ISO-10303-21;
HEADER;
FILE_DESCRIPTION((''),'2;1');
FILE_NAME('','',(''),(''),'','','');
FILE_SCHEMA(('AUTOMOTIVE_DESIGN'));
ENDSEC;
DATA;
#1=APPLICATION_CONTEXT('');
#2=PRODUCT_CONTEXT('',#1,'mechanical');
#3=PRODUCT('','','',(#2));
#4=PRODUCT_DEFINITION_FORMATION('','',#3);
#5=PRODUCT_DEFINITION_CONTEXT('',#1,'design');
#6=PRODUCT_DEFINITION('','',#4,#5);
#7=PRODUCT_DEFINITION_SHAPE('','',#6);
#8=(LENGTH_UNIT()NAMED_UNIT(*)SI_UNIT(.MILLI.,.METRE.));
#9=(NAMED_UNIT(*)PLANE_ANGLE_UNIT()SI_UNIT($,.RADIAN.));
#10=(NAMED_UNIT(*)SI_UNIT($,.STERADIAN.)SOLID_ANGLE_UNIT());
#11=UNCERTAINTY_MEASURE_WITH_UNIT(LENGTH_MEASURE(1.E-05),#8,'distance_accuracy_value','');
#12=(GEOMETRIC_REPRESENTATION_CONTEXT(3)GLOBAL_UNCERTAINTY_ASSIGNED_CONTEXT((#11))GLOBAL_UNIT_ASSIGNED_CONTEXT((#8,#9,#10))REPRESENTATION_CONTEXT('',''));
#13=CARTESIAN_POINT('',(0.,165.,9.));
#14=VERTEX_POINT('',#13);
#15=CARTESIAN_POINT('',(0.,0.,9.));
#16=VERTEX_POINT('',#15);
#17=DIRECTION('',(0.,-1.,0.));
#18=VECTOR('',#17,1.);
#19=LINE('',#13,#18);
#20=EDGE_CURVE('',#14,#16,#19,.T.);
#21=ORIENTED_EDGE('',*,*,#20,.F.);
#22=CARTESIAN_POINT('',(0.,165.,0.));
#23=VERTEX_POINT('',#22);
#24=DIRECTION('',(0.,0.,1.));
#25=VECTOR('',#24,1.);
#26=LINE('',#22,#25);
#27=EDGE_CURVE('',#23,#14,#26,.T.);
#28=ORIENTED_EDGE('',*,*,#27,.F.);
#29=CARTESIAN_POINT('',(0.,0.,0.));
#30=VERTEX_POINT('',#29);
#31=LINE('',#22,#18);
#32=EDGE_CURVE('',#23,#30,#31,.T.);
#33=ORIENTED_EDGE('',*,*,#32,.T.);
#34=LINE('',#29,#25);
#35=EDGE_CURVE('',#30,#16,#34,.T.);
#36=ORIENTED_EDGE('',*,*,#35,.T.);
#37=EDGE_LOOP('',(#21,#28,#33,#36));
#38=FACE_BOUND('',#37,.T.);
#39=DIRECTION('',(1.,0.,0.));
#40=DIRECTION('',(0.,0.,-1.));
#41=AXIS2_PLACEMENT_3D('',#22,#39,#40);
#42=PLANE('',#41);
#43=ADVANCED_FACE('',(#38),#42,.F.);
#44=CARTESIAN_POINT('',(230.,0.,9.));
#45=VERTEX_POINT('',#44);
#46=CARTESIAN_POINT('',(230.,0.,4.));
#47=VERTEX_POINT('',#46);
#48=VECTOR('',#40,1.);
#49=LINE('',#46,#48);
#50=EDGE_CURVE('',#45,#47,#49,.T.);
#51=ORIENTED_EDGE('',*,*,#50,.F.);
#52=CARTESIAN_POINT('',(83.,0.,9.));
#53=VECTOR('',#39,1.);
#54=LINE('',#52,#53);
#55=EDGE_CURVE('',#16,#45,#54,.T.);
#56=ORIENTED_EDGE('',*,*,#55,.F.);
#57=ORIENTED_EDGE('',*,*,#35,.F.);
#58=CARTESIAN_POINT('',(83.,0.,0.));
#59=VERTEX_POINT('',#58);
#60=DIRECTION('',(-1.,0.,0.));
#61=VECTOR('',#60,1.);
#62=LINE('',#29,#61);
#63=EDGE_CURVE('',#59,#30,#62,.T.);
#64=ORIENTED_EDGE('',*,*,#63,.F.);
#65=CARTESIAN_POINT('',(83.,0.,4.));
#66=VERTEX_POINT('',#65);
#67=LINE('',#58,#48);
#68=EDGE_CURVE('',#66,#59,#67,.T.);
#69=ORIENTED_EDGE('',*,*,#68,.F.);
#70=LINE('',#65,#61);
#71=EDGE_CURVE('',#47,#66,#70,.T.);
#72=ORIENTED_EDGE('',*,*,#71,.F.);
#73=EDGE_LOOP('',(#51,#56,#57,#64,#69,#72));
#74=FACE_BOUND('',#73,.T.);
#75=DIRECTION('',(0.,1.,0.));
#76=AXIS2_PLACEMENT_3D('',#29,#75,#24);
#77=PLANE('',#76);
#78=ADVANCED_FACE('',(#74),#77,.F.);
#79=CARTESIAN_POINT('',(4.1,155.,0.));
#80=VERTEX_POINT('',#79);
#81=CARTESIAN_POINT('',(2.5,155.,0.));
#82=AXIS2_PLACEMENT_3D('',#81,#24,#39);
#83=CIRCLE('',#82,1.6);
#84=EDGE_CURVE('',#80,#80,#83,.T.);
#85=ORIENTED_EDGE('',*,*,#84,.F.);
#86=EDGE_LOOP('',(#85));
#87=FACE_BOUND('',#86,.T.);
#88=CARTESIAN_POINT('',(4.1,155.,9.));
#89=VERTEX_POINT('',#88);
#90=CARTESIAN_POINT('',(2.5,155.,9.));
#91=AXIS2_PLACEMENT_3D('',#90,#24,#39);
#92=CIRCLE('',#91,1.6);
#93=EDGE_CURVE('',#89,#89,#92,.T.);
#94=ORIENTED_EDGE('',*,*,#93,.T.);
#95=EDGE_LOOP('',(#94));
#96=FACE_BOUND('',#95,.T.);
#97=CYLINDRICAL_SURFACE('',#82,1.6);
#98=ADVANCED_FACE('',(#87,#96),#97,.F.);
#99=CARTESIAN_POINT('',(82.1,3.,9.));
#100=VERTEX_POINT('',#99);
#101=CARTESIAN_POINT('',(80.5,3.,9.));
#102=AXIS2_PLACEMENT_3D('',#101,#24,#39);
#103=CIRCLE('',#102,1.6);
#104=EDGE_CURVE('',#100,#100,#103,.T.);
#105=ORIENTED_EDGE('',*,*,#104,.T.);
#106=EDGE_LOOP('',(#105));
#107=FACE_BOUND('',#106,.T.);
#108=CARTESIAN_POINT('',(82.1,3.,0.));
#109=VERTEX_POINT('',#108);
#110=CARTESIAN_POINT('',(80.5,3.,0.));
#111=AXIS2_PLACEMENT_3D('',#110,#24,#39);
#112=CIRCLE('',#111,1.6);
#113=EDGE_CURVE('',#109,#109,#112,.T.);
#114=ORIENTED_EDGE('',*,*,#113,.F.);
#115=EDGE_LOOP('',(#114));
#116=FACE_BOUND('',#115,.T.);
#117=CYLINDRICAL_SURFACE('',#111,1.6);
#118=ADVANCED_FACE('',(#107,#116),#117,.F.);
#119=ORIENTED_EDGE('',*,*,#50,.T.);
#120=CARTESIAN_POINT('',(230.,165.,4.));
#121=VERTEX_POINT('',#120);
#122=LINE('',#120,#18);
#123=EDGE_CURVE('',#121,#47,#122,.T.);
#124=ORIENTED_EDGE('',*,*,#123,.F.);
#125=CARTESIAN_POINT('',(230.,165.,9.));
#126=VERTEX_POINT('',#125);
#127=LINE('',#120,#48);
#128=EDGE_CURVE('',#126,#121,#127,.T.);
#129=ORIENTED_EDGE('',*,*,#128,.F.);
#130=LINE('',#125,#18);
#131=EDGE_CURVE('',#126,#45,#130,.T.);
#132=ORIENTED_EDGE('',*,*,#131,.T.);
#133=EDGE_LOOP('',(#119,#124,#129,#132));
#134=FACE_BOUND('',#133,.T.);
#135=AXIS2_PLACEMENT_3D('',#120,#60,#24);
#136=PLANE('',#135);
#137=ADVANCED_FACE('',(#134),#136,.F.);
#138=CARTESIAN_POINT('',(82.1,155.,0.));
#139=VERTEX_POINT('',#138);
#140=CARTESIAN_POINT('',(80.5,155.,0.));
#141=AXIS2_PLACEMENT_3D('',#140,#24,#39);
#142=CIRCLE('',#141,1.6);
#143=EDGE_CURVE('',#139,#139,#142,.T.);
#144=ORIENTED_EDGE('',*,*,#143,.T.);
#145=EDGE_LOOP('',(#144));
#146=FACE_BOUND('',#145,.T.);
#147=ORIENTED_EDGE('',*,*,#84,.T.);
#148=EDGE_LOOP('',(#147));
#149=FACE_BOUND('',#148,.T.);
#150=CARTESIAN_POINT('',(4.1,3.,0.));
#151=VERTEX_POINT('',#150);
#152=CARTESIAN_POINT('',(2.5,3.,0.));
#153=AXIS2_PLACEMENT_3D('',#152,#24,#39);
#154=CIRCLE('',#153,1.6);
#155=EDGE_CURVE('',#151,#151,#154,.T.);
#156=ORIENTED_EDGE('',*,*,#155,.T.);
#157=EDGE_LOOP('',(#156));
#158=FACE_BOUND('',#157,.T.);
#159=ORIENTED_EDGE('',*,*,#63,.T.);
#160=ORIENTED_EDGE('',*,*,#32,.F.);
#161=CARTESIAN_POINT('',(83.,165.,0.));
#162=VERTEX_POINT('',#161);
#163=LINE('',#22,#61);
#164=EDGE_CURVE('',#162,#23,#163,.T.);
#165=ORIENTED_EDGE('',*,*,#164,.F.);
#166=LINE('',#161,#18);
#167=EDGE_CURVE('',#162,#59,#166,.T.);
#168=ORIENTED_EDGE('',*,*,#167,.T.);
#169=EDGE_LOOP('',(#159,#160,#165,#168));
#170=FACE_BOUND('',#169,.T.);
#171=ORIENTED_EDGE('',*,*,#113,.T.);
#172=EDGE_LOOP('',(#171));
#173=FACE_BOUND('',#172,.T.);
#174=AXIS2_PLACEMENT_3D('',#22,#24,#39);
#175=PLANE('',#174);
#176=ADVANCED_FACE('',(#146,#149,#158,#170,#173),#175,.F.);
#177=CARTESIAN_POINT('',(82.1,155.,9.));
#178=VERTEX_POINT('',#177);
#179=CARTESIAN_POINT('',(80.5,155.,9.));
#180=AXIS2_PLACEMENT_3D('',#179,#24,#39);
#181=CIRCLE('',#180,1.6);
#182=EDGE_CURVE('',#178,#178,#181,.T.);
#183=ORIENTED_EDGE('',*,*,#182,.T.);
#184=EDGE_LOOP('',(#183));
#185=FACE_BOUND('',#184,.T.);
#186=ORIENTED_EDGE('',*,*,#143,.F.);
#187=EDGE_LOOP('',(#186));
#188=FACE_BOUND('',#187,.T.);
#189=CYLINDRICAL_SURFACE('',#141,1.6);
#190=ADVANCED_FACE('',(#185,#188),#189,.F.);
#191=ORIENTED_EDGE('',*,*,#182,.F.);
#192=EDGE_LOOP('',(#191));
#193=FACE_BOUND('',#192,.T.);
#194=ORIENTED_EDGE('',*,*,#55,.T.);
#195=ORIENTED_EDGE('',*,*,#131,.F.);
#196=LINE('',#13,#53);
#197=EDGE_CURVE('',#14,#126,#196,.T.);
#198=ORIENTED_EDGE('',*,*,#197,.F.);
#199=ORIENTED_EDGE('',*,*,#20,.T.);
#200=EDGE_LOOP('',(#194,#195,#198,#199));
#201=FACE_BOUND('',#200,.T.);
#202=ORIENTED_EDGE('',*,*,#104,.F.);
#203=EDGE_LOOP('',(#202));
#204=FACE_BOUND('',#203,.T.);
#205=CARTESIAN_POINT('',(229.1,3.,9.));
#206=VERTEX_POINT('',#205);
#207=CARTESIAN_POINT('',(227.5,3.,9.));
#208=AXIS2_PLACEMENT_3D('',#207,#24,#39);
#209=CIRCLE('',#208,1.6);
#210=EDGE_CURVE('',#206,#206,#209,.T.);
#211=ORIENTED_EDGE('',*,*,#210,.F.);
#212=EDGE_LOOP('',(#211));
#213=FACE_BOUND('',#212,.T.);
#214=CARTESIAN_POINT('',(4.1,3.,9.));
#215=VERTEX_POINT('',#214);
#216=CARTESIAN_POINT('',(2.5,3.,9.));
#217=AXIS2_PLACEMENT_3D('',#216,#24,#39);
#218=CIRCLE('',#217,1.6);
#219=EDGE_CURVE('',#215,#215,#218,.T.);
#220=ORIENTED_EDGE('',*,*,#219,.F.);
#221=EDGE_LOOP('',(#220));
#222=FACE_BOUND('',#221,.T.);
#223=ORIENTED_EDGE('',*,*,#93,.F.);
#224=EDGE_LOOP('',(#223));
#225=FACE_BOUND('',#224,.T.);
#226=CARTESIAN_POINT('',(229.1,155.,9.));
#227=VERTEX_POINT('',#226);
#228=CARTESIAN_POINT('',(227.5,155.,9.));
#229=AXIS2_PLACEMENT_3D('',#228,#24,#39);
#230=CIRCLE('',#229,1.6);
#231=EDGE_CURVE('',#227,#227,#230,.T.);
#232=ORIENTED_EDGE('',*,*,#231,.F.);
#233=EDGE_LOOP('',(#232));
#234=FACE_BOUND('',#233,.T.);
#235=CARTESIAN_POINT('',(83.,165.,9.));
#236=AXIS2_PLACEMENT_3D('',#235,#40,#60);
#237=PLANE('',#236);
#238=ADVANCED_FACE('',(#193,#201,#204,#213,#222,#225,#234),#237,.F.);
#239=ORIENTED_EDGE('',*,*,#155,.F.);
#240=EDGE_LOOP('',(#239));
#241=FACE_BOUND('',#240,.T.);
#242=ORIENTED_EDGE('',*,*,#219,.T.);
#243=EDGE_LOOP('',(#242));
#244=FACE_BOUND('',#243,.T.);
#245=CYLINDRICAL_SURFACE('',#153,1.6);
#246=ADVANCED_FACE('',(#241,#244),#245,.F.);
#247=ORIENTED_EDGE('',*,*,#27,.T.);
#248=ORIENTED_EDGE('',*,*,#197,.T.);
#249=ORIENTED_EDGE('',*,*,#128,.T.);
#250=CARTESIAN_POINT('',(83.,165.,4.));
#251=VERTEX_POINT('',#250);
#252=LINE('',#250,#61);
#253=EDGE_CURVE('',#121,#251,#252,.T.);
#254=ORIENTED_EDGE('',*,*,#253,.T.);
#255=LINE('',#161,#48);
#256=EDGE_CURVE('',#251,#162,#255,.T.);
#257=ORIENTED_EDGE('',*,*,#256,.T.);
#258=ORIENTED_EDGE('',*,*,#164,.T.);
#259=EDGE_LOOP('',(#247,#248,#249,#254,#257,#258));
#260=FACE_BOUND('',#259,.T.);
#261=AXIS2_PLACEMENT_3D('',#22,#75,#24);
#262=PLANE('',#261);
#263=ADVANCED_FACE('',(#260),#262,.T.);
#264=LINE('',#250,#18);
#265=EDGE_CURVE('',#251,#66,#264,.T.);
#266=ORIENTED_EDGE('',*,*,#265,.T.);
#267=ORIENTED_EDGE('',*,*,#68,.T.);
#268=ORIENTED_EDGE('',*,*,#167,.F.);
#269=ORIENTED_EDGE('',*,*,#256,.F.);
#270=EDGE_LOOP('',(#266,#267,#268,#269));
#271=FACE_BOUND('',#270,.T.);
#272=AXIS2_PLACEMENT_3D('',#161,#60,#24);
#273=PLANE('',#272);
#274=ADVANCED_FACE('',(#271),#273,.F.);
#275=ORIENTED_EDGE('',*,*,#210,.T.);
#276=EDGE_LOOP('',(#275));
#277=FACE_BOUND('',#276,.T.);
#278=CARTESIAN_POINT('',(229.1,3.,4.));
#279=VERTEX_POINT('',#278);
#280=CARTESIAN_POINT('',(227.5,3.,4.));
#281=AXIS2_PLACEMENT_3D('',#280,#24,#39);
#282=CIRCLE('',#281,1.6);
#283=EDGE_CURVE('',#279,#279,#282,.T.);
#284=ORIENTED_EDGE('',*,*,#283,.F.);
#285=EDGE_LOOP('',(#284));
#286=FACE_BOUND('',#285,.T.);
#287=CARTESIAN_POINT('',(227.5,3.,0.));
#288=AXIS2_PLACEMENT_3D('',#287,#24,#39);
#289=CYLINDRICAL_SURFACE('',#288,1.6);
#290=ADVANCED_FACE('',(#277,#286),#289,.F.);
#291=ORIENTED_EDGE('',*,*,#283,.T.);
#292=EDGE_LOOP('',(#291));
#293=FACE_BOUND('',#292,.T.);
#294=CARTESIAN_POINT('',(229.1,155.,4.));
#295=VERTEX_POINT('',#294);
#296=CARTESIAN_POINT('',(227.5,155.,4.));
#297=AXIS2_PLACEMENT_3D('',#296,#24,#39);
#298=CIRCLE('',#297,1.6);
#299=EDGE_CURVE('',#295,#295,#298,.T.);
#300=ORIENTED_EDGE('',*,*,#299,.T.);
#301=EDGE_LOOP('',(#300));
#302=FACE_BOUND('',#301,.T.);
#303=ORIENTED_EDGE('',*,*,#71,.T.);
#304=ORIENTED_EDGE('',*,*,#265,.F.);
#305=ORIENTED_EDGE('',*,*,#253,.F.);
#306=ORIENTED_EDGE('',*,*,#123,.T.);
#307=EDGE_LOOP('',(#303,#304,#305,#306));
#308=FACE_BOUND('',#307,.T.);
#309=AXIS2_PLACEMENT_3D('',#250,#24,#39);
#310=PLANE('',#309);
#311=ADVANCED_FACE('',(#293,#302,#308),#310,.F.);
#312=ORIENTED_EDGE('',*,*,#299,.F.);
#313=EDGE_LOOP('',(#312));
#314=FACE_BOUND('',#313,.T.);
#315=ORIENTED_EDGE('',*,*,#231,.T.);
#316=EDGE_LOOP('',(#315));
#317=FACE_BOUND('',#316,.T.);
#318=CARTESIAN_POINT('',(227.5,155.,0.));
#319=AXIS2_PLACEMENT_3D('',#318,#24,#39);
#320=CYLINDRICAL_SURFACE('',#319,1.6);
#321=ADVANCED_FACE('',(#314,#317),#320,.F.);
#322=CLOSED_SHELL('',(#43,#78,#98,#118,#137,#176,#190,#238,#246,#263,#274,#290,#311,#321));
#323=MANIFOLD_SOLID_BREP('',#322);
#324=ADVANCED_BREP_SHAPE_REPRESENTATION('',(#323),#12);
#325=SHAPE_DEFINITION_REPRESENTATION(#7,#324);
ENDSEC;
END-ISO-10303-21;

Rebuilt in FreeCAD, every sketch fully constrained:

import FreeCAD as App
import Part
import Sketcher
from FreeCAD import Vector

doc = App.newDocument("Part")
body = doc.addObject("PartDesign::Body", "Body")

sketch1 = doc.addObject("Sketcher::SketchObject", "Sketch")
body.addObject(sketch1)
sketch1.AttachmentSupport = (doc.XZ_Plane, [""])
sketch1.MapMode = "FlatFace"
sketch1.addGeometry(Part.LineSegment(Vector(83, 0, 0), Vector(0, 0, 0)), False)
sketch1.addGeometry(Part.LineSegment(Vector(0, 0, 0), Vector(0, 9, 0)), False)
sketch1.addGeometry(Part.LineSegment(Vector(0, 9, 0), Vector(230, 9, 0)), False)
sketch1.addGeometry(Part.LineSegment(Vector(230, 9, 0), Vector(230, 4, 0)), False)
sketch1.addGeometry(Part.LineSegment(Vector(230, 4, 0), Vector(83, 4, 0)), False)
sketch1.addGeometry(Part.LineSegment(Vector(83, 4, 0), Vector(83, 0, 0)), False)
sketch1.addConstraint(Sketcher.Constraint("Coincident", 0, 2, 1, 1))
sketch1.addConstraint(Sketcher.Constraint("Coincident", 1, 2, 2, 1))
sketch1.addConstraint(Sketcher.Constraint("Coincident", 2, 2, 3, 1))
sketch1.addConstraint(Sketcher.Constraint("Coincident", 3, 2, 4, 1))
sketch1.addConstraint(Sketcher.Constraint("Coincident", 4, 2, 5, 1))
sketch1.addConstraint(Sketcher.Constraint("Coincident", 5, 2, 0, 1))
sketch1.addConstraint(Sketcher.Constraint("Horizontal", 0))
sketch1.addConstraint(Sketcher.Constraint("Vertical", 1))
sketch1.addConstraint(Sketcher.Constraint("Horizontal", 2))
sketch1.addConstraint(Sketcher.Constraint("Vertical", 3))
sketch1.addConstraint(Sketcher.Constraint("Horizontal", 4))
sketch1.addConstraint(Sketcher.Constraint("Vertical", 5))
sketch1.addConstraint(Sketcher.Constraint("Coincident", 0, 2, -1, 1))
sketch1.addConstraint(Sketcher.Constraint("DistanceX", 0, 2, 0, 1, 83.0))
sketch1.addConstraint(Sketcher.Constraint("DistanceX", 2, 1, 2, 2, 230.0))
sketch1.addConstraint(Sketcher.Constraint("DistanceY", 1, 1, 1, 2, 9.0))
sketch1.addConstraint(Sketcher.Constraint("DistanceY", 3, 2, 3, 1, 5.0))
pad1 = doc.addObject("PartDesign::Pad", "Pad")
body.addObject(pad1)
pad1.Profile = sketch1
pad1.Length = 165
pad1.Reversed = True

sketch2 = doc.addObject("Sketcher::SketchObject", "Sketch001")
body.addObject(sketch2)
sketch2.AttachmentSupport = (doc.XY_Plane, [""])
sketch2.MapMode = "FlatFace"
sketch2.AttachmentOffset = App.Placement(Vector(0, 0, 9), App.Rotation())
sketch2.addGeometry(Part.Circle(Vector(227.5, 3, 0), Vector(0, 0, 1), 1.6), False)
sketch2.addGeometry(Part.Circle(Vector(227.5, 155, 0), Vector(0, 0, 1), 1.6), False)
sketch2.addGeometry(Part.Circle(Vector(80.5, 155, 0), Vector(0, 0, 1), 1.6), False)
sketch2.addGeometry(Part.Circle(Vector(80.5, 3, 0), Vector(0, 0, 1), 1.6), False)
sketch2.addGeometry(Part.Circle(Vector(2.5, 155, 0), Vector(0, 0, 1), 1.6), False)
sketch2.addGeometry(Part.Circle(Vector(2.5, 3, 0), Vector(0, 0, 1), 1.6), False)
sketch2.addConstraint(Sketcher.Constraint("Equal", 0, 1))
sketch2.addConstraint(Sketcher.Constraint("Equal", 1, 2))
sketch2.addConstraint(Sketcher.Constraint("Equal", 2, 3))
sketch2.addConstraint(Sketcher.Constraint("Equal", 3, 4))
sketch2.addConstraint(Sketcher.Constraint("Equal", 4, 5))
sketch2.addConstraint(Sketcher.Constraint("Horizontal", 1, 3, 2, 3))
sketch2.addConstraint(Sketcher.Constraint("Horizontal", 0, 3, 3, 3))
sketch2.addConstraint(Sketcher.Constraint("Horizontal", 2, 3, 4, 3))
sketch2.addConstraint(Sketcher.Constraint("Horizontal", 3, 3, 5, 3))
sketch2.addConstraint(Sketcher.Constraint("Vertical", 0, 3, 1, 3))
sketch2.addConstraint(Sketcher.Constraint("Vertical", 2, 3, 3, 3))
sketch2.addConstraint(Sketcher.Constraint("Vertical", 4, 3, 5, 3))
sketch2.addConstraint(Sketcher.Constraint("Diameter", 0, 3.2))
sketch2.addConstraint(Sketcher.Constraint("DistanceY", -1, 1, 0, 3, 3.0))
sketch2.addConstraint(Sketcher.Constraint("DistanceY", -1, 1, 1, 3, 155.0))
sketch2.addConstraint(Sketcher.Constraint("DistanceX", 2, 3, 1, 3, 147.0))
sketch2.addConstraint(Sketcher.Constraint("DistanceX", 4, 3, 2, 3, 78.0))
sketch2.addConstraint(Sketcher.Constraint("DistanceX", -1, 1, 0, 3, 227.5))
pocket1 = doc.addObject("PartDesign::Pocket", "Pocket")
body.addObject(pocket1)
pocket1.Profile = sketch2
pocket1.Type = "ThroughAll"

doc.recompute()
